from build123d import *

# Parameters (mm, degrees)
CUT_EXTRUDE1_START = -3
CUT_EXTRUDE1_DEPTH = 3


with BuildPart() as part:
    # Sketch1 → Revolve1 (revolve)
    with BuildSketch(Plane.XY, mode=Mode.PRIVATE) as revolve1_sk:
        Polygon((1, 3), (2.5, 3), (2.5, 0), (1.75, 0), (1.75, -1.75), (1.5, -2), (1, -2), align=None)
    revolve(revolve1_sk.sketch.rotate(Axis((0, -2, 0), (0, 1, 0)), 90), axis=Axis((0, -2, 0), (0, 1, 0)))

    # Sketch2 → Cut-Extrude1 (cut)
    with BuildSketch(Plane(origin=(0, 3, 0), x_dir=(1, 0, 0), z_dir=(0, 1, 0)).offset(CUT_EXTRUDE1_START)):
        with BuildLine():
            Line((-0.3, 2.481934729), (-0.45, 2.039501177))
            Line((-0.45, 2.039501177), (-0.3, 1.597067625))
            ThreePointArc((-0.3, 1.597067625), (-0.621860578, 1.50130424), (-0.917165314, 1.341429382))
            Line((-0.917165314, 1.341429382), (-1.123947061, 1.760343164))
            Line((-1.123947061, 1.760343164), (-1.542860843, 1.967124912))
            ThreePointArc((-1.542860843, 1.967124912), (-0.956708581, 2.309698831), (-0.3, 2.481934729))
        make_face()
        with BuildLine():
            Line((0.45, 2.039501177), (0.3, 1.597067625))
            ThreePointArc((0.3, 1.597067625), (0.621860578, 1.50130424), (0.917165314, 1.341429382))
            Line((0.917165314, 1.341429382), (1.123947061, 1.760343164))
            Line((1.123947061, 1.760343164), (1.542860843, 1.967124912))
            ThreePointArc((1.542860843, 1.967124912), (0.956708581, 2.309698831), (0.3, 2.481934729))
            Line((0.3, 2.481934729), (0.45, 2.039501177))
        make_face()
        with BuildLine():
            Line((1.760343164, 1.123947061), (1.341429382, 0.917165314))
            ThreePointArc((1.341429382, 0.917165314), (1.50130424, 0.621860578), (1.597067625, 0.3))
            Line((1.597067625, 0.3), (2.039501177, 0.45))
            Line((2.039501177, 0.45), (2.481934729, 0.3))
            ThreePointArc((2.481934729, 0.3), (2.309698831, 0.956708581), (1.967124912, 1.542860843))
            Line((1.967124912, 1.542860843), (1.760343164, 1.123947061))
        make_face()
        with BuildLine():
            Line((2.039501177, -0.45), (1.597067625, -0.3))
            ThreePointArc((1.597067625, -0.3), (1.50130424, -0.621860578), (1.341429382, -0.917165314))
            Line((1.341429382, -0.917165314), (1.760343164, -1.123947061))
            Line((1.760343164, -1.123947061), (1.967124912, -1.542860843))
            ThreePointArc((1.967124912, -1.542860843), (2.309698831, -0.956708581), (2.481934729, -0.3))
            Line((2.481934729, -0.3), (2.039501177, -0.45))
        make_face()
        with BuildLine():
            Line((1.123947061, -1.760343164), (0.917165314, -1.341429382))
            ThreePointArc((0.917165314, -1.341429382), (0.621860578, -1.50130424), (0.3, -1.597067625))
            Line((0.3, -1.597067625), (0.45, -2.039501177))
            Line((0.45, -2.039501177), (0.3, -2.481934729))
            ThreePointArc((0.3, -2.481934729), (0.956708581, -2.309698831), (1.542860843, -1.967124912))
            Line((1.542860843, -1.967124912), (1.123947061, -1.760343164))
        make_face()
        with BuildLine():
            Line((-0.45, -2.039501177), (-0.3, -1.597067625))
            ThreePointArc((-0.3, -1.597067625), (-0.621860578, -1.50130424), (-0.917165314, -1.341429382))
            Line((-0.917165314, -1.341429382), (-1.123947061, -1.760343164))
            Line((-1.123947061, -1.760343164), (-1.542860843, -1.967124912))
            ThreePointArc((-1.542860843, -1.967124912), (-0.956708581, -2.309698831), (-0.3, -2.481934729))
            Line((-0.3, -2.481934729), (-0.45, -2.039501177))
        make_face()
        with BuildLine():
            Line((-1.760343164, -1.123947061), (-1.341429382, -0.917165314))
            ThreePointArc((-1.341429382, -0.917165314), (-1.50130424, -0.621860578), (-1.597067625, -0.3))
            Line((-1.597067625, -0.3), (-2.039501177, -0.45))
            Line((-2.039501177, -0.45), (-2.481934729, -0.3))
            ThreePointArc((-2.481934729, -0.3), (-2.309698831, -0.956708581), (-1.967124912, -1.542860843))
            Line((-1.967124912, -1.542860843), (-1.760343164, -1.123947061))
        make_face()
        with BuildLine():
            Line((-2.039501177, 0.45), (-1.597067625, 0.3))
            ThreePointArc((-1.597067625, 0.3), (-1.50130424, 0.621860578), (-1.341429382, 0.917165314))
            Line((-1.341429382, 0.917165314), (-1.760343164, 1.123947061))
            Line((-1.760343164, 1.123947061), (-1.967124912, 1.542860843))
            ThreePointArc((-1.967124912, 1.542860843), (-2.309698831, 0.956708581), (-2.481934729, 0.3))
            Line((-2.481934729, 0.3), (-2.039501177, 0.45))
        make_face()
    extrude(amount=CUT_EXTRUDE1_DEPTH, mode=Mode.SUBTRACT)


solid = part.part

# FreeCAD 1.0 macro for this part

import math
import FreeCAD as App
import Part
import Sketcher

V = App.Vector
Q = App.Units.Quantity

doc = App.newDocument("Part")
body = doc.addObject("PartDesign::Body", "Body")

# Sketch on XY plane
sketch1 = body.newObject("Sketcher::SketchObject", "Sketch")
sketch1.AttachmentSupport = (doc.getObject("XY_Plane"), [""])
sketch1.MapMode = "FlatFace"
sketch1.addGeometry([
    Part.LineSegment(V(2.5, 3, 0), V(1, 3, 0)),  # 0
    Part.LineSegment(V(1, 3, 0), V(1, -2, 0)),  # 1
    Part.LineSegment(V(1, -2, 0), V(1.5, -2, 0)),  # 2
    Part.LineSegment(V(1.5, -2, 0), V(1.75, -1.75, 0)),  # 3
    Part.LineSegment(V(1.75, -1.75, 0), V(1.75, 0, 0)),  # 4
    Part.LineSegment(V(1.75, 0, 0), V(2.5, 0, 0)),  # 5
    Part.LineSegment(V(2.5, 0, 0), V(2.5, 3, 0)),  # 6
], False)
sketch1.addConstraint([
    Sketcher.Constraint("Coincident", 0, 2, 1, 1),
    Sketcher.Constraint("Coincident", 1, 2, 2, 1),
    Sketcher.Constraint("Coincident", 2, 2, 3, 1),
    Sketcher.Constraint("Coincident", 3, 2, 4, 1),
    Sketcher.Constraint("Coincident", 4, 2, 5, 1),
    Sketcher.Constraint("Coincident", 5, 2, 6, 1),
    Sketcher.Constraint("Coincident", 6, 2, 0, 1),
    Sketcher.Constraint("Horizontal", 0),
    Sketcher.Constraint("Vertical", 1),
    Sketcher.Constraint("Horizontal", 2),
    Sketcher.Constraint("Vertical", 4),
    Sketcher.Constraint("Horizontal", 5),
    Sketcher.Constraint("Vertical", 6),
    Sketcher.Constraint("PointOnObject", 4, 2, -1),
    Sketcher.Constraint("DistanceY", 1, 2, 1, 1, 5.0),
    Sketcher.Constraint("DistanceY", 6, 1, 6, 2, 3.0),
    Sketcher.Constraint("Angle", 3, Q("45 deg")),
    Sketcher.Constraint("DistanceX", 0, 2, 0, 1, 1.5),
    Sketcher.Constraint("DistanceX", 2, 1, 2, 2, 0.5),
    Sketcher.Constraint("DistanceX", -1, 1, 0, 2, 1.0),
    Sketcher.Constraint("DistanceX", 5, 1, 5, 2, 0.75),
])
revolution = body.newObject("PartDesign::Revolution", "Revolution")
revolution.Profile = sketch1
revolution.ReferenceAxis = (sketch1, ["V_Axis"])
revolution.Angle = 360

# Sketch on XZ plane
sketch2 = body.newObject("Sketcher::SketchObject", "Sketch001")
sketch2.AttachmentSupport = (doc.getObject("XZ_Plane"), [""])
sketch2.MapMode = "FlatFace"
sketch2.addGeometry([
    Part.LineSegment(V(-0.45, -2.04, 0), V(-0.3, -2.48, 0)),  # 0
    Part.ArcOfCircle(Part.Circle(V(0, 0, 0), V(0, 0, 1), 2.5), math.radians(-128), math.radians(-97)),  # 1
    Part.LineSegment(V(-1.54, -1.97, 0), V(-1.12, -1.76, 0)),  # 2
    Part.LineSegment(V(-1.12, -1.76, 0), V(-0.92, -1.34, 0)),  # 3
    Part.ArcOfCircle(Part.Circle(V(0, 0, 0), V(0, 0, 1), 1.62), math.radians(-124), math.radians(-101)),  # 4
    Part.LineSegment(V(-0.3, -1.6, 0), V(-0.45, -2.04, 0)),  # 5
    Part.LineSegment(V(0.45, -2.04, 0), V(0.3, -1.6, 0)),  # 6
    Part.ArcOfCircle(Part.Circle(V(0, 0, 0), V(0, 0, 1), 1.62), math.radians(-79), math.radians(-56)),  # 7
    Part.LineSegment(V(0.92, -1.34, 0), V(1.12, -1.76, 0)),  # 8
    Part.LineSegment(V(1.12, -1.76, 0), V(1.54, -1.97, 0)),  # 9
    Part.ArcOfCircle(Part.Circle(V(0, 0, 0), V(0, 0, 1), 2.5), math.radians(-83), math.radians(-52)),  # 10
    Part.LineSegment(V(0.3, -2.48, 0), V(0.45, -2.04, 0)),  # 11
    Part.LineSegment(V(1.76, -1.12, 0), V(1.34, -0.92, 0)),  # 12
    Part.ArcOfCircle(Part.Circle(V(0, 0, 0), V(0, 0, 1), 1.62), math.radians(-34), math.radians(-11)),  # 13
    Part.LineSegment(V(1.6, -0.3, 0), V(2.04, -0.45, 0)),  # 14
    Part.LineSegment(V(2.04, -0.45, 0), V(2.48, -0.3, 0)),  # 15
    Part.ArcOfCircle(Part.Circle(V(0, 0, 0), V(0, 0, 1), 2.5), math.radians(-38), math.radians(-7)),  # 16
    Part.LineSegment(V(1.97, -1.54, 0), V(1.76, -1.12, 0)),  # 17
    Part.LineSegment(V(2.04, 0.45, 0), V(1.6, 0.3, 0)),  # 18
    Part.ArcOfCircle(Part.Circle(V(0, 0, 0), V(0, 0, 1), 1.62), math.radians(11), math.radians(34)),  # 19
    Part.LineSegment(V(1.34, 0.92, 0), V(1.76, 1.12, 0)),  # 20
    Part.LineSegment(V(1.76, 1.12, 0), V(1.97, 1.54, 0)),  # 21
    Part.ArcOfCircle(Part.Circle(V(0, 0, 0), V(0, 0, 1), 2.5), math.radians(7), math.radians(38)),  # 22
    Part.LineSegment(V(2.48, 0.3, 0), V(2.04, 0.45, 0)),  # 23
    Part.LineSegment(V(1.12, 1.76, 0), V(0.92, 1.34, 0)),  # 24
    Part.ArcOfCircle(Part.Circle(V(0, 0, 0), V(0, 0, 1), 1.62), math.radians(56), math.radians(79)),  # 25
    Part.LineSegment(V(0.3, 1.6, 0), V(0.45, 2.04, 0)),  # 26
    Part.LineSegment(V(0.45, 2.04, 0), V(0.3, 2.48, 0)),  # 27
    Part.ArcOfCircle(Part.Circle(V(0, 0, 0), V(0, 0, 1), 2.5), math.radians(52), math.radians(83)),  # 28
    Part.LineSegment(V(1.54, 1.97, 0), V(1.12, 1.76, 0)),  # 29
    Part.LineSegment(V(-0.45, 2.04, 0), V(-0.3, 1.6, 0)),  # 30
    Part.ArcOfCircle(Part.Circle(V(0, 0, 0), V(0, 0, 1), 1.62), math.radians(101), math.radians(124)),  # 31
    Part.LineSegment(V(-0.92, 1.34, 0), V(-1.12, 1.76, 0)),  # 32
    Part.LineSegment(V(-1.12, 1.76, 0), V(-1.54, 1.97, 0)),  # 33
    Part.ArcOfCircle(Part.Circle(V(0, 0, 0), V(0, 0, 1), 2.5), math.radians(97), math.radians(128)),  # 34
    Part.LineSegment(V(-0.3, 2.48, 0), V(-0.45, 2.04, 0)),  # 35
    Part.LineSegment(V(-1.76, 1.12, 0), V(-1.34, 0.92, 0)),  # 36
    Part.ArcOfCircle(Part.Circle(V(0, 0, 0), V(0, 0, 1), 1.62), math.radians(146), math.radians(169)),  # 37
    Part.LineSegment(V(-1.6, 0.3, 0), V(-2.04, 0.45, 0)),  # 38
    Part.LineSegment(V(-2.04, 0.45, 0), V(-2.48, 0.3, 0)),  # 39
    Part.ArcOfCircle(Part.Circle(V(0, 0, 0), V(0, 0, 1), 2.5), math.radians(142), math.radians(173)),  # 40
    Part.LineSegment(V(-1.97, 1.54, 0), V(-1.76, 1.12, 0)),  # 41
    Part.LineSegment(V(-2.04, -0.45, 0), V(-1.6, -0.3, 0)),  # 42
    Part.ArcOfCircle(Part.Circle(V(0, 0, 0), V(0, 0, 1), 1.62), math.radians(-169), math.radians(-146)),  # 43
    Part.LineSegment(V(-1.34, -0.92, 0), V(-1.76, -1.12, 0)),  # 44
    Part.LineSegment(V(-1.76, -1.12, 0), V(-1.97, -1.54, 0)),  # 45
    Part.ArcOfCircle(Part.Circle(V(0, 0, 0), V(0, 0, 1), 2.5), math.radians(-173), math.radians(-142)),  # 46
    Part.LineSegment(V(-2.48, -0.3, 0), V(-2.04, -0.45, 0)),  # 47
], False)
sketch2.addConstraint([
    Sketcher.Constraint("Coincident", 0, 2, 1, 2),
    Sketcher.Constraint("Coincident", 1, 1, 2, 1),
    Sketcher.Constraint("Coincident", 2, 2, 3, 1),
    Sketcher.Constraint("Coincident", 3, 2, 4, 1),
    Sketcher.Constraint("Coincident", 4, 2, 5, 1),
    Sketcher.Constraint("Coincident", 5, 2, 0, 1),
    Sketcher.Constraint("Coincident", 6, 2, 7, 1),
    Sketcher.Constraint("Coincident", 7, 2, 8, 1),
    Sketcher.Constraint("Coincident", 8, 2, 9, 1),
    Sketcher.Constraint("Coincident", 9, 2, 10, 2),
    Sketcher.Constraint("Coincident", 10, 1, 11, 1),
    Sketcher.Constraint("Coincident", 11, 2, 6, 1),
    Sketcher.Constraint("Coincident", 12, 2, 13, 1),
    Sketcher.Constraint("Coincident", 13, 2, 14, 1),
    Sketcher.Constraint("Coincident", 14, 2, 15, 1),
    Sketcher.Constraint("Coincident", 15, 2, 16, 2),
    Sketcher.Constraint("Coincident", 16, 1, 17, 1),
    Sketcher.Constraint("Coincident", 17, 2, 12, 1),
    Sketcher.Constraint("Coincident", 18, 2, 19, 1),
    Sketcher.Constraint("Coincident", 19, 2, 20, 1),
    Sketcher.Constraint("Coincident", 20, 2, 21, 1),
    Sketcher.Constraint("Coincident", 21, 2, 22, 2),
    Sketcher.Constraint("Coincident", 22, 1, 23, 1),
    Sketcher.Constraint("Coincident", 23, 2, 18, 1),
    Sketcher.Constraint("Coincident", 24, 2, 25, 1),
    Sketcher.Constraint("Coincident", 25, 2, 26, 1),
    Sketcher.Constraint("Coincident", 26, 2, 27, 1),
    Sketcher.Constraint("Coincident", 27, 2, 28, 2),
    Sketcher.Constraint("Coincident", 28, 1, 29, 1),
    Sketcher.Constraint("Coincident", 29, 2, 24, 1),
    Sketcher.Constraint("Coincident", 30, 2, 31, 1),
    Sketcher.Constraint("Coincident", 31, 2, 32, 1),
    Sketcher.Constraint("Coincident", 32, 2, 33, 1),
    Sketcher.Constraint("Coincident", 33, 2, 34, 2),
    Sketcher.Constraint("Coincident", 34, 1, 35, 1),
    Sketcher.Constraint("Coincident", 35, 2, 30, 1),
    Sketcher.Constraint("Coincident", 36, 2, 37, 1),
    Sketcher.Constraint("Coincident", 37, 2, 38, 1),
    Sketcher.Constraint("Coincident", 38, 2, 39, 1),
    Sketcher.Constraint("Coincident", 39, 2, 40, 2),
    Sketcher.Constraint("Coincident", 40, 1, 41, 1),
    Sketcher.Constraint("Coincident", 41, 2, 36, 1),
    Sketcher.Constraint("Coincident", 42, 2, 43, 1),
    Sketcher.Constraint("Coincident", 43, 2, 44, 1),
    Sketcher.Constraint("Coincident", 44, 2, 45, 1),
    Sketcher.Constraint("Coincident", 45, 2, 46, 2),
    Sketcher.Constraint("Coincident", 46, 1, 47, 1),
    Sketcher.Constraint("Coincident", 47, 2, 42, 1),
    Sketcher.Constraint("Coincident", 1, 3, -1, 1),
    Sketcher.Constraint("Coincident", 4, 3, -1, 1),
    Sketcher.Constraint("Coincident", 7, 3, -1, 1),
    Sketcher.Constraint("Coincident", 10, 3, -1, 1),
    Sketcher.Constraint("Coincident", 13, 3, -1, 1),
    Sketcher.Constraint("Coincident", 16, 3, -1, 1),
    Sketcher.Constraint("Coincident", 19, 3, -1, 1),
    Sketcher.Constraint("Coincident", 22, 3, -1, 1),
    Sketcher.Constraint("Coincident", 25, 3, -1, 1),
    Sketcher.Constraint("Coincident", 28, 3, -1, 1),
    Sketcher.Constraint("Coincident", 31, 3, -1, 1),
    Sketcher.Constraint("Coincident", 34, 3, -1, 1),
    Sketcher.Constraint("Coincident", 37, 3, -1, 1),
    Sketcher.Constraint("Coincident", 40, 3, -1, 1),
    Sketcher.Constraint("Coincident", 43, 3, -1, 1),
    Sketcher.Constraint("Coincident", 46, 3, -1, 1),
    Sketcher.Constraint("Equal", 4, 7),
    Sketcher.Constraint("Equal", 1, 10),
    Sketcher.Constraint("Equal", 7, 13),
    Sketcher.Constraint("Equal", 10, 16),
    Sketcher.Constraint("Equal", 13, 19),
    Sketcher.Constraint("Equal", 16, 22),
    Sketcher.Constraint("Equal", 19, 25),
    Sketcher.Constraint("Equal", 22, 28),
    Sketcher.Constraint("Equal", 25, 31),
    Sketcher.Constraint("Equal", 28, 34),
    Sketcher.Constraint("Equal", 31, 37),
    Sketcher.Constraint("Equal", 34, 40),
    Sketcher.Constraint("Equal", 37, 43),
    Sketcher.Constraint("Equal", 40, 46),
    Sketcher.Constraint("Symmetric", 5, 2, 26, 2, -1, 1),
    Sketcher.Constraint("Symmetric", 2, 2, 29, 2, -1, 1),
    Sketcher.Constraint("Symmetric", 8, 2, 32, 2, -1, 1),
    Sketcher.Constraint("Symmetric", 11, 2, 35, 2, -1, 1),
    Sketcher.Constraint("Symmetric", 14, 2, 38, 2, -1, 1),
    Sketcher.Constraint("Symmetric", 17, 2, 41, 2, -1, 1),
    Sketcher.Constraint("Symmetric", 20, 2, 44, 2, -1, 1),
    Sketcher.Constraint("Symmetric", 23, 2, 47, 2, -1, 1),
    Sketcher.Constraint("Symmetric", 2, 2, 8, 2, -2),
    Sketcher.Constraint("Symmetric", 5, 2, 11, 2, -2),
    Sketcher.Constraint("Symmetric", 23, 2, 38, 2, -2),
    Sketcher.Constraint("Symmetric", 20, 2, 41, 2, -2),
    Sketcher.Constraint("Parallel", 0, 6),
    Sketcher.Constraint("Perpendicular", 2, 8),
    Sketcher.Constraint("Perpendicular", 3, 9),
    Sketcher.Constraint("Parallel", 5, 11),
    Sketcher.Constraint("Parallel", 9, 12),
    Sketcher.Constraint("Perpendicular", 11, 14),
    Sketcher.Constraint("Perpendicular", 6, 15),
    Sketcher.Constraint("Parallel", 8, 17),
    Sketcher.Constraint("Parallel", 15, 18),
    Sketcher.Constraint("Perpendicular", 17, 20),
    Sketcher.Constraint("Perpendicular", 12, 21),
    Sketcher.Constraint("Parallel", 14, 23),
    Sketcher.Constraint("Parallel", 21, 24),
    Sketcher.Constraint("Perpendicular", 23, 26),
    Sketcher.Constraint("Perpendicular", 18, 27),
    Sketcher.Constraint("Parallel", 20, 29),
    Sketcher.Constraint("Parallel", 27, 30),
    Sketcher.Constraint("Perpendicular", 29, 32),
    Sketcher.Constraint("Perpendicular", 24, 33),
    Sketcher.Constraint("Parallel", 26, 35),
    Sketcher.Constraint("Parallel", 33, 36),
    Sketcher.Constraint("Perpendicular", 35, 38),
    Sketcher.Constraint("Perpendicular", 30, 39),
    Sketcher.Constraint("Parallel", 32, 41),
    Sketcher.Constraint("Parallel", 39, 42),
    Sketcher.Constraint("Perpendicular", 41, 44),
    Sketcher.Constraint("Perpendicular", 36, 45),
    Sketcher.Constraint("Parallel", 38, 47),
    Sketcher.Constraint("Horizontal", 4, 2, 6, 2),
    Sketcher.Constraint("Horizontal", 3, 2, 7, 2),
    Sketcher.Constraint("Horizontal", 13, 2, 15, 2),
    Sketcher.Constraint("Vertical", 0, 2, 4, 2),
    Sketcher.Constraint("Equal", 0, 2),
    Sketcher.Constraint("Equal", 2, 3),
    Sketcher.Constraint("Equal", 11, 12),
    Sketcher.Constraint("Equal", 12, 14),
    Sketcher.Constraint("Equal", 15, 17),
    Sketcher.Constraint("Radius", 1, 2.5),
    Sketcher.Constraint("Radius", 4, 1.625),
    Sketcher.Constraint("DistanceX", 0, 2, -1, 1, 0.3),
    Sketcher.Constraint("DistanceX", 5, 2, -1, 1, 0.45),
    Sketcher.Constraint("DistanceX", 1, 1, -1, 1, 1.542861),
])
pocket1 = body.newObject("PartDesign::Pocket", "Pocket")
pocket1.Profile = sketch2
pocket1.Length = 3

doc.recompute()
